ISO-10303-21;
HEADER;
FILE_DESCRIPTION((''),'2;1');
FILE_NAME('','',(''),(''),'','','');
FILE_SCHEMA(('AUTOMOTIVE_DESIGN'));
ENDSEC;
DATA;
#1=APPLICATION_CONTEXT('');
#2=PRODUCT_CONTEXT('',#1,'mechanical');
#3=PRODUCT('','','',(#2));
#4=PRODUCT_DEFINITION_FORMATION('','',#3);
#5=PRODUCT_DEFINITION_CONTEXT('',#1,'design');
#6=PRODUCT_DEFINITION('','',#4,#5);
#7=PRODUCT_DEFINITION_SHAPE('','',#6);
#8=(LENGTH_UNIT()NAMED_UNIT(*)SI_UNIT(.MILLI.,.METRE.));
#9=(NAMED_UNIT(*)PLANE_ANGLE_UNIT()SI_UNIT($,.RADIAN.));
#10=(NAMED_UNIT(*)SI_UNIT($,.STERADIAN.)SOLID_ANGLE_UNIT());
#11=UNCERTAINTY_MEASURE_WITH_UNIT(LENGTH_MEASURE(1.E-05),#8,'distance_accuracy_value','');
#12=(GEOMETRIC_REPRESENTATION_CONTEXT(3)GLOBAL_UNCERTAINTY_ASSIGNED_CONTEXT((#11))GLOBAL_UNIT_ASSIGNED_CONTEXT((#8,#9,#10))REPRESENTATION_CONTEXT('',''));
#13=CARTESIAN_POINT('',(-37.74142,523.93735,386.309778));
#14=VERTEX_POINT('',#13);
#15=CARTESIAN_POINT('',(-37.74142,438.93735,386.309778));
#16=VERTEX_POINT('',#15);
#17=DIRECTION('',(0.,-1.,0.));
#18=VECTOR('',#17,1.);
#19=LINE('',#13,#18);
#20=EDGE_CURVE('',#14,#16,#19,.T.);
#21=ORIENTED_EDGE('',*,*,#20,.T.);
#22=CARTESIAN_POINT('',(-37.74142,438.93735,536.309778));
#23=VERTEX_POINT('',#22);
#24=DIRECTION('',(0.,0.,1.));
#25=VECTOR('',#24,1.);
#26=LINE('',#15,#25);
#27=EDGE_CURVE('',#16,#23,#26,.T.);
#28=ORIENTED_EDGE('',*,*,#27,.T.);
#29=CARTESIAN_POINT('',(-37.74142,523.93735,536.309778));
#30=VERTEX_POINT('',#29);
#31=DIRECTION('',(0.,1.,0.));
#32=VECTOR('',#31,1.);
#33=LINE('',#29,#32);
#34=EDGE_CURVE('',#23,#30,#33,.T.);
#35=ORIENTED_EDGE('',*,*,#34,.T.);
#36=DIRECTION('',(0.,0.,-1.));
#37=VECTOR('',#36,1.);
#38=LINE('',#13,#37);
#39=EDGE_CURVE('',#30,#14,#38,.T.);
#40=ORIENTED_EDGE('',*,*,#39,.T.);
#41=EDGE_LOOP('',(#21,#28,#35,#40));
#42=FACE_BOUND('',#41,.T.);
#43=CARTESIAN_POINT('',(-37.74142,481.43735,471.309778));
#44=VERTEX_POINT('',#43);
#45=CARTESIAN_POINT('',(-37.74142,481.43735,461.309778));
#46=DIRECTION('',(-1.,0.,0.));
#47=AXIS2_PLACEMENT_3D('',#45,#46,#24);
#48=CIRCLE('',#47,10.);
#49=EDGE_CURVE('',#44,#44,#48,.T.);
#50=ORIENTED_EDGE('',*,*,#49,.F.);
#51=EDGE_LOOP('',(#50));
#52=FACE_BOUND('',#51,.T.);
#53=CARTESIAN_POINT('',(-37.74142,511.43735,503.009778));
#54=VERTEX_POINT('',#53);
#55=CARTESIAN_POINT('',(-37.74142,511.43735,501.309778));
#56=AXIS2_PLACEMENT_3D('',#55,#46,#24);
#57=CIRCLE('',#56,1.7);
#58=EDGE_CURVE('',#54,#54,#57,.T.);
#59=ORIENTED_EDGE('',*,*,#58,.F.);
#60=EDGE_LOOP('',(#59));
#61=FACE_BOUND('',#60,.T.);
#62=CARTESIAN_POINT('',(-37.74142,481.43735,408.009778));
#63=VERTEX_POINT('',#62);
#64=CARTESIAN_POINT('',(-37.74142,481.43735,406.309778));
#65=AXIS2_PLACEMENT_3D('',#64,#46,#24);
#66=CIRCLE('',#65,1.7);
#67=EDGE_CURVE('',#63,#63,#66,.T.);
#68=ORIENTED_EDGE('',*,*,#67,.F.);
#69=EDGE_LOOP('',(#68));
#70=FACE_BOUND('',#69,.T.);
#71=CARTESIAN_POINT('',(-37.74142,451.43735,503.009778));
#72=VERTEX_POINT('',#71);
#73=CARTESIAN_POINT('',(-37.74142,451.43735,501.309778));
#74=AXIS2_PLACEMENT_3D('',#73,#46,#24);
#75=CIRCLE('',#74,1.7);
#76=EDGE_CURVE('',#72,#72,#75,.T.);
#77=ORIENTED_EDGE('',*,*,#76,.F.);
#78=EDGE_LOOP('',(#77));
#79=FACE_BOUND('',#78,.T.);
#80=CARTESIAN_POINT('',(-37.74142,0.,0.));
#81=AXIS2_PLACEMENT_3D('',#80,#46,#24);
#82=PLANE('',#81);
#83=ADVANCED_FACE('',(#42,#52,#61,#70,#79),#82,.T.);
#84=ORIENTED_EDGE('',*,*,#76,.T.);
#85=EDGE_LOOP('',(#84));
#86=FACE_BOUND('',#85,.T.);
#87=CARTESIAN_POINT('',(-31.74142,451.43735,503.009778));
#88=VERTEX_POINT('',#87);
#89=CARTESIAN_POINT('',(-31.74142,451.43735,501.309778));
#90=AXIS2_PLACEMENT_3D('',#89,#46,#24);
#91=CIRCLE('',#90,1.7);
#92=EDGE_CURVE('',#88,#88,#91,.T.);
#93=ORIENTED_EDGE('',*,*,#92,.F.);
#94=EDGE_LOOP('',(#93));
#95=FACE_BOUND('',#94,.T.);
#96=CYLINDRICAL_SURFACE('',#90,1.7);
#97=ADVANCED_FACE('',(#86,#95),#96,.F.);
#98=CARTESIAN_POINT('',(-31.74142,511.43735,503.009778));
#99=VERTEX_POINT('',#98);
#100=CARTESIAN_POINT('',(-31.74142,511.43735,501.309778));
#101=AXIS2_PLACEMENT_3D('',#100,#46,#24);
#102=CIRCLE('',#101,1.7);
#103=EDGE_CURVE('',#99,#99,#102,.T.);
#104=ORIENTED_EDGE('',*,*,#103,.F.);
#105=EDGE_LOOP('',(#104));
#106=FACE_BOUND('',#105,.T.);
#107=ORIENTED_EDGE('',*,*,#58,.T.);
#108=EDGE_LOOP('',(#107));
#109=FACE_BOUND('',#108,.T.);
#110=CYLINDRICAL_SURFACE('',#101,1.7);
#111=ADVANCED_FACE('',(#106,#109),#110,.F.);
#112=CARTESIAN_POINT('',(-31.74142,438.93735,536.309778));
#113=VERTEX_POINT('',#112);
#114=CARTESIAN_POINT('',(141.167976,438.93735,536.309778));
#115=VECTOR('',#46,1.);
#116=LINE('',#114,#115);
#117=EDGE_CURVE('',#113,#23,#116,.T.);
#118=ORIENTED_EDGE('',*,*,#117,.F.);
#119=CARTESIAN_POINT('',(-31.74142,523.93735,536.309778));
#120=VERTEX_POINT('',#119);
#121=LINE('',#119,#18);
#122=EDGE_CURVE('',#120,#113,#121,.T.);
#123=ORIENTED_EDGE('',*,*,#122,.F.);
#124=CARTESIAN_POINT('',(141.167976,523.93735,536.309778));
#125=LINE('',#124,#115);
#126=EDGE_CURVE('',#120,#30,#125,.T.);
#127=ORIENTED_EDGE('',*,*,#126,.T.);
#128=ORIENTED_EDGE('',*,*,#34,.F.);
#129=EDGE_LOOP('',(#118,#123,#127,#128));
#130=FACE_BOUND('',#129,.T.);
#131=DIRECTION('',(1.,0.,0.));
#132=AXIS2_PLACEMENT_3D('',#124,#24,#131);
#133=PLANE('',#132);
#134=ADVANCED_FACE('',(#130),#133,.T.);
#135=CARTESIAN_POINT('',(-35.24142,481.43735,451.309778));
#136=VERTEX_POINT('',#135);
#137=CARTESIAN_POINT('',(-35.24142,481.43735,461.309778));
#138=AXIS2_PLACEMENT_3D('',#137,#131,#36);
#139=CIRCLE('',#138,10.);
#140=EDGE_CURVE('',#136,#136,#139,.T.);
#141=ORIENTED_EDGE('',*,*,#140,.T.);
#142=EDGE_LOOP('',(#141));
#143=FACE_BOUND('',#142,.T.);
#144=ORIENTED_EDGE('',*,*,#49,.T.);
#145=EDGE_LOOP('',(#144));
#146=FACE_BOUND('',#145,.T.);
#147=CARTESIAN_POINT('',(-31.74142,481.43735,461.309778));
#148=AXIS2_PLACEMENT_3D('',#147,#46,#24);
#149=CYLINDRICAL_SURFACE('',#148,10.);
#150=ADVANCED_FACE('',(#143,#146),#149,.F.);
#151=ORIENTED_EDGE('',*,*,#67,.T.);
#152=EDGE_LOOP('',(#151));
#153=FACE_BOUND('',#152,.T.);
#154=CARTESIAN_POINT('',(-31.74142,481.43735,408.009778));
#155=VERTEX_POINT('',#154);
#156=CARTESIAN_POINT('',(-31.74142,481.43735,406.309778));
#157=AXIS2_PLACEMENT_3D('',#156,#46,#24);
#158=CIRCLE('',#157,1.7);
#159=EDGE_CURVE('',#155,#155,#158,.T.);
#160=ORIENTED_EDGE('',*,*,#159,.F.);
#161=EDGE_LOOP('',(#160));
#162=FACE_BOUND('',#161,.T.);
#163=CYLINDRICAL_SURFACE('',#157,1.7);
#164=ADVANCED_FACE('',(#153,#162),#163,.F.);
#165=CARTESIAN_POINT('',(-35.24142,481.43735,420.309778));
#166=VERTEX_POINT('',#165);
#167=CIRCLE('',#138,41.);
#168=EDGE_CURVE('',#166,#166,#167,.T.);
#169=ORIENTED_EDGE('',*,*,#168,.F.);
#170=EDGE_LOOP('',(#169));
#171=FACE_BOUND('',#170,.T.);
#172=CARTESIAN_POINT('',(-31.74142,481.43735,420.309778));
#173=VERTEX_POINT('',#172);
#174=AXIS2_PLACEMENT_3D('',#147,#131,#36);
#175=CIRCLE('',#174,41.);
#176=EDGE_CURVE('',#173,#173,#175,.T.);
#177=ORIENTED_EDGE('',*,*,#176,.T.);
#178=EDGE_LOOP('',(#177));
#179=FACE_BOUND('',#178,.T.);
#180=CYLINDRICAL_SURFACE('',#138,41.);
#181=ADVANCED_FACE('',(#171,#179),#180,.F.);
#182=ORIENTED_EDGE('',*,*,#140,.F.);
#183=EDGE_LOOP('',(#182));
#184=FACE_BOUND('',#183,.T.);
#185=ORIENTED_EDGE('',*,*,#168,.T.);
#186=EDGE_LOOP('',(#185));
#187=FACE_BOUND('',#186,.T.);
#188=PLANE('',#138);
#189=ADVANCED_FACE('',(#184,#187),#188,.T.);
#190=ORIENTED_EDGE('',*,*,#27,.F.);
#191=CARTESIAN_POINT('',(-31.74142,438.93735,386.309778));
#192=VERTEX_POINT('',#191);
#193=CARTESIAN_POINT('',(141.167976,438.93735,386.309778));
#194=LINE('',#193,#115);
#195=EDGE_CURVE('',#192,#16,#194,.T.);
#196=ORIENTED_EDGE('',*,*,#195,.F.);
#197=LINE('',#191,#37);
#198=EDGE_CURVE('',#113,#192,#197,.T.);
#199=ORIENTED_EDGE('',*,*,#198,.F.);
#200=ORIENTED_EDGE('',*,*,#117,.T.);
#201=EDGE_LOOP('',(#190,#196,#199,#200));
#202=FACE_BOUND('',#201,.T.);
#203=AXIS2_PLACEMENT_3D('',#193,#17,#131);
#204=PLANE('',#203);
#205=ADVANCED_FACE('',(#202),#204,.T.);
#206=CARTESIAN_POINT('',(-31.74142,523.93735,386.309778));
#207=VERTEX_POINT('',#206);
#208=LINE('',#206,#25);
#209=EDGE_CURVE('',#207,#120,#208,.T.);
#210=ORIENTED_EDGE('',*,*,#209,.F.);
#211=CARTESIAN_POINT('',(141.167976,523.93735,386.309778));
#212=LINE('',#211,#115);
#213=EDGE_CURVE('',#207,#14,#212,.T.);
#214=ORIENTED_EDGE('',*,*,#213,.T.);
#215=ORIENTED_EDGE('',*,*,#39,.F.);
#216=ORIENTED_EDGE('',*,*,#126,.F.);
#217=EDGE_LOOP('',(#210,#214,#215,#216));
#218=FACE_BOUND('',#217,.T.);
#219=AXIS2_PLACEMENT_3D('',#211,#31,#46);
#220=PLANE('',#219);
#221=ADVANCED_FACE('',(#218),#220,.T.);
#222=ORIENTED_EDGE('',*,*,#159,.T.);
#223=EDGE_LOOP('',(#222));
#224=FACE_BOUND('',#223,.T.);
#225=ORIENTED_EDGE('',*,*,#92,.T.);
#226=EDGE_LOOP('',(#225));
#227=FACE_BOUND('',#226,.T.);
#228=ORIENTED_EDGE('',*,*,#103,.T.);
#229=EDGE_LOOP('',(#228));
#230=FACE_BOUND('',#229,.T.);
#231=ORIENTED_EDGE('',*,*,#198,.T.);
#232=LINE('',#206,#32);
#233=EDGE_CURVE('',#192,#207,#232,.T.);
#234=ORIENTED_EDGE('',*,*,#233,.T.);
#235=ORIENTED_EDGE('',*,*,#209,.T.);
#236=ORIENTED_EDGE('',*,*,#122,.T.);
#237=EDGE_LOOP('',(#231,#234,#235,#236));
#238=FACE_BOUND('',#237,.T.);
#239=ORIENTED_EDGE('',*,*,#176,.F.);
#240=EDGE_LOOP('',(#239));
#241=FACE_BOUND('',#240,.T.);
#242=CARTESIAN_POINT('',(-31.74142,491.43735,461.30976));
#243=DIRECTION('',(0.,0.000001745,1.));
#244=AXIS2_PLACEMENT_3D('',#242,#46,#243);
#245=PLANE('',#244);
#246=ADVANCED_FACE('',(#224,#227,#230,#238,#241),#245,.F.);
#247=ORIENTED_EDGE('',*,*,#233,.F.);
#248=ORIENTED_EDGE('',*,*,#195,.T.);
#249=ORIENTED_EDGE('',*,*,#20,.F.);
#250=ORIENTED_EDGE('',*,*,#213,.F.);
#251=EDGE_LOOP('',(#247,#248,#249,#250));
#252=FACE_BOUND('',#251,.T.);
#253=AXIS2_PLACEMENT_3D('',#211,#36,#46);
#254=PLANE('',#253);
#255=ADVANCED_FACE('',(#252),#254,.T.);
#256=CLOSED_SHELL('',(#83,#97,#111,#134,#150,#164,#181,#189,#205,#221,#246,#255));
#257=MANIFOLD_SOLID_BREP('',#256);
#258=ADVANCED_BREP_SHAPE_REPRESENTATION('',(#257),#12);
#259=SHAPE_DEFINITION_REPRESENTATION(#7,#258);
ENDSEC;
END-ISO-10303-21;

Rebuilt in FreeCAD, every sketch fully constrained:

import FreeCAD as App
import Part
import Sketcher
from FreeCAD import Vector
Q = App.Units.Quantity


def add_polygon(sketch, points):
    """Adds a closed chain of lines whose ends are joined by coincident constraints."""
    first, n = sketch.GeometryCount, len(points)
    for a, b in zip(points, points[1:] + points[:1]):
        sketch.addGeometry(Part.LineSegment(App.Vector(*a, 0), App.Vector(*b, 0)), False)
    for i in range(n):
        sketch.addConstraint(Sketcher.Constraint("Coincident", first + i, 2, first + (i + 1) % n, 1))

doc = App.newDocument("Part")
body = doc.addObject("PartDesign::Body", "Body")

# Sketch on YZ plane
sketch1 = body.newObject("Sketcher::SketchObject", "Sketch")
sketch1.AttachmentSupport = (doc.getObject("YZ_Plane"), [""])
sketch1.MapMode = "FlatFace"
sketch1.AttachmentOffset = App.Placement(Vector(0, 0, -34.24142), App.Rotation())
add_polygon(sketch1, [(524, 386), (439, 386), (439, 536), (524, 536)])  # lines 0-3
sketch1.addConstraint([
    Sketcher.Constraint("Horizontal", 0),
    Sketcher.Constraint("Vertical", 1),
    Sketcher.Constraint("Horizontal", 2),
    Sketcher.Constraint("Vertical", 3),
    Sketcher.Constraint("DistanceX", 0, 2, 0, 1, Q("85 mm")),
    Sketcher.Constraint("DistanceY", 1, 1, 1, 2, Q("150 mm")),
    Sketcher.Constraint("DistanceX", -1, 1, 0, 2, Q("438.93735 mm")),
    Sketcher.Constraint("DistanceY", -1, 1, 0, 2, Q("386.309778 mm")),
])
pad1 = body.newObject("PartDesign::Pad", "Pad")
pad1.Profile = sketch1
pad1.Type = "TwoLengths"
pad1.Length = 3.5
pad1.Length2 = 2.5
pad1.Reversed = True

# Sketch on YZ plane
sketch2 = body.newObject("Sketcher::SketchObject", "Sketch001")
sketch2.AttachmentSupport = (doc.getObject("YZ_Plane"), [""])
sketch2.MapMode = "FlatFace"
sketch2.AttachmentOffset = App.Placement(Vector(0, 0, -31.74142), App.Rotation())
sketch2.addGeometry(Part.Circle(Vector(481, 461, 0), Vector(0, 0, 1), 41), False)
sketch2.addConstraint([
    Sketcher.Constraint("Diameter", 0, Q("82 mm")),
    Sketcher.Constraint("DistanceX", -1, 1, 0, 3, Q("481.43735 mm")),
    Sketcher.Constraint("DistanceY", -1, 1, 0, 3, Q("461.309778 mm")),
])
pocket1 = body.newObject("PartDesign::Pocket", "Pocket")
pocket1.Profile = sketch2
pocket1.Length = 3.5

# Sketch on YZ plane
sketch3 = body.newObject("Sketcher::SketchObject", "Sketch002")
sketch3.AttachmentSupport = (doc.getObject("YZ_Plane"), [""])
sketch3.MapMode = "FlatFace"
sketch3.AttachmentOffset = App.Placement(Vector(0, 0, -37.74142), App.Rotation())
sketch3.addGeometry(Part.Circle(Vector(481, 461, 0), Vector(0, 0, 1), 10), False)
sketch3.addConstraint([
    Sketcher.Constraint("Diameter", 0, Q("20 mm")),
    Sketcher.Constraint("DistanceX", -1, 1, 0, 3, Q("481.43735 mm")),
    Sketcher.Constraint("DistanceY", -1, 1, 0, 3, Q("461.309778 mm")),
])
pocket2 = body.newObject("PartDesign::Pocket", "Pocket001")
pocket2.Profile = sketch3
pocket2.Type = "ThroughAll"
pocket2.Reversed = True

# Sketch on YZ plane
sketch4 = body.newObject("Sketcher::SketchObject", "Sketch003")
sketch4.AttachmentSupport = (doc.getObject("YZ_Plane"), [""])
sketch4.MapMode = "FlatFace"
sketch4.AttachmentOffset = App.Placement(Vector(0, 0, -37.74142), App.Rotation())
sketch4.addGeometry([
    Part.Circle(Vector(511.4, 501.3, 0), Vector(0, 0, 1), 1.7),
    Part.Circle(Vector(481.4, 406.3, 0), Vector(0, 0, 1), 1.7),
    Part.Circle(Vector(451.4, 501.3, 0), Vector(0, 0, 1), 1.7),
], False)
sketch4.addConstraint([
    Sketcher.Constraint("Equal", 0, 1),
    Sketcher.Constraint("Equal", 1, 2),
    Sketcher.Constraint("Horizontal", 0, 3, 2, 3),
    Sketcher.Constraint("Diameter", 0, Q("3.4 mm")),
    Sketcher.Constraint("DistanceX", 1, 3, 0, 3, Q("30 mm")),
    Sketcher.Constraint("DistanceY", 1, 3, 0, 3, Q("95 mm")),
    Sketcher.Constraint("DistanceX", 2, 3, 0, 3, Q("60 mm")),
    Sketcher.Constraint("DistanceX", -1, 1, 0, 3, Q("511.43735 mm")),
    Sketcher.Constraint("DistanceY", -1, 1, 0, 3, Q("501.309778 mm")),
])
pocket3 = body.newObject("PartDesign::Pocket", "Pocket002")
pocket3.Profile = sketch4
pocket3.Type = "ThroughAll"
pocket3.Reversed = True

doc.recompute()
